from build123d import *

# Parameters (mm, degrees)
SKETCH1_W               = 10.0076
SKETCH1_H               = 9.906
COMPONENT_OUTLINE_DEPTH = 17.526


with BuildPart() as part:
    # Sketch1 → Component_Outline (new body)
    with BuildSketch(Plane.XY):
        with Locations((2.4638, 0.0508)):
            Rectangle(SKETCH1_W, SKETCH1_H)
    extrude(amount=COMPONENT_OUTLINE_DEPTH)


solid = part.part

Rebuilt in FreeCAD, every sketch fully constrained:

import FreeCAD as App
import Part
import Sketcher

V = App.Vector
Q = App.Units.Quantity


def add_polygon(sketch, points):
    """Adds a closed chain of lines whose ends are joined by coincident constraints."""
    first, n = sketch.GeometryCount, len(points)
    for a, b in zip(points, points[1:] + points[:1]):
        sketch.addGeometry(Part.LineSegment(App.Vector(*a, 0), App.Vector(*b, 0)), False)
    for i in range(n):
        sketch.addConstraint(Sketcher.Constraint("Coincident", first + i, 2, first + (i + 1) % n, 1))

doc = App.newDocument("Part")
body = doc.addObject("PartDesign::Body", "Body")

# Sketch on XY plane
sketch1 = doc.addObject("Sketcher::SketchObject", "Sketch")
body.addObject(sketch1)
sketch1.AttachmentSupport = (doc.XY_Plane, [""])
sketch1.MapMode = "FlatFace"
add_polygon(sketch1, [(-3, 5), (-3, -5), (7, -5), (7, 5)])  # lines 0-3
sketch1.addConstraint([
    Sketcher.Constraint("Vertical", 0),
    Sketcher.Constraint("Horizontal", 1),
    Sketcher.Constraint("Vertical", 2),
    Sketcher.Constraint("Horizontal", 3),
    Sketcher.Constraint("DistanceY", 0, 2, 0, 1, Q("0.39 in")),
    Sketcher.Constraint("DistanceX", 0, 2, -1, 1, Q("0.1 in")),
    Sketcher.Constraint("DistanceX", 1, 1, 1, 2, Q("0.394 in")),
    Sketcher.Constraint("DistanceY", 0, 2, -1, 1, Q("0.193 in")),
])
pad1 = doc.addObject("PartDesign::Pad", "Pad")
body.addObject(pad1)
pad1.Profile = sketch1
pad1.Length = Q("0.69 in")

doc.recompute()
